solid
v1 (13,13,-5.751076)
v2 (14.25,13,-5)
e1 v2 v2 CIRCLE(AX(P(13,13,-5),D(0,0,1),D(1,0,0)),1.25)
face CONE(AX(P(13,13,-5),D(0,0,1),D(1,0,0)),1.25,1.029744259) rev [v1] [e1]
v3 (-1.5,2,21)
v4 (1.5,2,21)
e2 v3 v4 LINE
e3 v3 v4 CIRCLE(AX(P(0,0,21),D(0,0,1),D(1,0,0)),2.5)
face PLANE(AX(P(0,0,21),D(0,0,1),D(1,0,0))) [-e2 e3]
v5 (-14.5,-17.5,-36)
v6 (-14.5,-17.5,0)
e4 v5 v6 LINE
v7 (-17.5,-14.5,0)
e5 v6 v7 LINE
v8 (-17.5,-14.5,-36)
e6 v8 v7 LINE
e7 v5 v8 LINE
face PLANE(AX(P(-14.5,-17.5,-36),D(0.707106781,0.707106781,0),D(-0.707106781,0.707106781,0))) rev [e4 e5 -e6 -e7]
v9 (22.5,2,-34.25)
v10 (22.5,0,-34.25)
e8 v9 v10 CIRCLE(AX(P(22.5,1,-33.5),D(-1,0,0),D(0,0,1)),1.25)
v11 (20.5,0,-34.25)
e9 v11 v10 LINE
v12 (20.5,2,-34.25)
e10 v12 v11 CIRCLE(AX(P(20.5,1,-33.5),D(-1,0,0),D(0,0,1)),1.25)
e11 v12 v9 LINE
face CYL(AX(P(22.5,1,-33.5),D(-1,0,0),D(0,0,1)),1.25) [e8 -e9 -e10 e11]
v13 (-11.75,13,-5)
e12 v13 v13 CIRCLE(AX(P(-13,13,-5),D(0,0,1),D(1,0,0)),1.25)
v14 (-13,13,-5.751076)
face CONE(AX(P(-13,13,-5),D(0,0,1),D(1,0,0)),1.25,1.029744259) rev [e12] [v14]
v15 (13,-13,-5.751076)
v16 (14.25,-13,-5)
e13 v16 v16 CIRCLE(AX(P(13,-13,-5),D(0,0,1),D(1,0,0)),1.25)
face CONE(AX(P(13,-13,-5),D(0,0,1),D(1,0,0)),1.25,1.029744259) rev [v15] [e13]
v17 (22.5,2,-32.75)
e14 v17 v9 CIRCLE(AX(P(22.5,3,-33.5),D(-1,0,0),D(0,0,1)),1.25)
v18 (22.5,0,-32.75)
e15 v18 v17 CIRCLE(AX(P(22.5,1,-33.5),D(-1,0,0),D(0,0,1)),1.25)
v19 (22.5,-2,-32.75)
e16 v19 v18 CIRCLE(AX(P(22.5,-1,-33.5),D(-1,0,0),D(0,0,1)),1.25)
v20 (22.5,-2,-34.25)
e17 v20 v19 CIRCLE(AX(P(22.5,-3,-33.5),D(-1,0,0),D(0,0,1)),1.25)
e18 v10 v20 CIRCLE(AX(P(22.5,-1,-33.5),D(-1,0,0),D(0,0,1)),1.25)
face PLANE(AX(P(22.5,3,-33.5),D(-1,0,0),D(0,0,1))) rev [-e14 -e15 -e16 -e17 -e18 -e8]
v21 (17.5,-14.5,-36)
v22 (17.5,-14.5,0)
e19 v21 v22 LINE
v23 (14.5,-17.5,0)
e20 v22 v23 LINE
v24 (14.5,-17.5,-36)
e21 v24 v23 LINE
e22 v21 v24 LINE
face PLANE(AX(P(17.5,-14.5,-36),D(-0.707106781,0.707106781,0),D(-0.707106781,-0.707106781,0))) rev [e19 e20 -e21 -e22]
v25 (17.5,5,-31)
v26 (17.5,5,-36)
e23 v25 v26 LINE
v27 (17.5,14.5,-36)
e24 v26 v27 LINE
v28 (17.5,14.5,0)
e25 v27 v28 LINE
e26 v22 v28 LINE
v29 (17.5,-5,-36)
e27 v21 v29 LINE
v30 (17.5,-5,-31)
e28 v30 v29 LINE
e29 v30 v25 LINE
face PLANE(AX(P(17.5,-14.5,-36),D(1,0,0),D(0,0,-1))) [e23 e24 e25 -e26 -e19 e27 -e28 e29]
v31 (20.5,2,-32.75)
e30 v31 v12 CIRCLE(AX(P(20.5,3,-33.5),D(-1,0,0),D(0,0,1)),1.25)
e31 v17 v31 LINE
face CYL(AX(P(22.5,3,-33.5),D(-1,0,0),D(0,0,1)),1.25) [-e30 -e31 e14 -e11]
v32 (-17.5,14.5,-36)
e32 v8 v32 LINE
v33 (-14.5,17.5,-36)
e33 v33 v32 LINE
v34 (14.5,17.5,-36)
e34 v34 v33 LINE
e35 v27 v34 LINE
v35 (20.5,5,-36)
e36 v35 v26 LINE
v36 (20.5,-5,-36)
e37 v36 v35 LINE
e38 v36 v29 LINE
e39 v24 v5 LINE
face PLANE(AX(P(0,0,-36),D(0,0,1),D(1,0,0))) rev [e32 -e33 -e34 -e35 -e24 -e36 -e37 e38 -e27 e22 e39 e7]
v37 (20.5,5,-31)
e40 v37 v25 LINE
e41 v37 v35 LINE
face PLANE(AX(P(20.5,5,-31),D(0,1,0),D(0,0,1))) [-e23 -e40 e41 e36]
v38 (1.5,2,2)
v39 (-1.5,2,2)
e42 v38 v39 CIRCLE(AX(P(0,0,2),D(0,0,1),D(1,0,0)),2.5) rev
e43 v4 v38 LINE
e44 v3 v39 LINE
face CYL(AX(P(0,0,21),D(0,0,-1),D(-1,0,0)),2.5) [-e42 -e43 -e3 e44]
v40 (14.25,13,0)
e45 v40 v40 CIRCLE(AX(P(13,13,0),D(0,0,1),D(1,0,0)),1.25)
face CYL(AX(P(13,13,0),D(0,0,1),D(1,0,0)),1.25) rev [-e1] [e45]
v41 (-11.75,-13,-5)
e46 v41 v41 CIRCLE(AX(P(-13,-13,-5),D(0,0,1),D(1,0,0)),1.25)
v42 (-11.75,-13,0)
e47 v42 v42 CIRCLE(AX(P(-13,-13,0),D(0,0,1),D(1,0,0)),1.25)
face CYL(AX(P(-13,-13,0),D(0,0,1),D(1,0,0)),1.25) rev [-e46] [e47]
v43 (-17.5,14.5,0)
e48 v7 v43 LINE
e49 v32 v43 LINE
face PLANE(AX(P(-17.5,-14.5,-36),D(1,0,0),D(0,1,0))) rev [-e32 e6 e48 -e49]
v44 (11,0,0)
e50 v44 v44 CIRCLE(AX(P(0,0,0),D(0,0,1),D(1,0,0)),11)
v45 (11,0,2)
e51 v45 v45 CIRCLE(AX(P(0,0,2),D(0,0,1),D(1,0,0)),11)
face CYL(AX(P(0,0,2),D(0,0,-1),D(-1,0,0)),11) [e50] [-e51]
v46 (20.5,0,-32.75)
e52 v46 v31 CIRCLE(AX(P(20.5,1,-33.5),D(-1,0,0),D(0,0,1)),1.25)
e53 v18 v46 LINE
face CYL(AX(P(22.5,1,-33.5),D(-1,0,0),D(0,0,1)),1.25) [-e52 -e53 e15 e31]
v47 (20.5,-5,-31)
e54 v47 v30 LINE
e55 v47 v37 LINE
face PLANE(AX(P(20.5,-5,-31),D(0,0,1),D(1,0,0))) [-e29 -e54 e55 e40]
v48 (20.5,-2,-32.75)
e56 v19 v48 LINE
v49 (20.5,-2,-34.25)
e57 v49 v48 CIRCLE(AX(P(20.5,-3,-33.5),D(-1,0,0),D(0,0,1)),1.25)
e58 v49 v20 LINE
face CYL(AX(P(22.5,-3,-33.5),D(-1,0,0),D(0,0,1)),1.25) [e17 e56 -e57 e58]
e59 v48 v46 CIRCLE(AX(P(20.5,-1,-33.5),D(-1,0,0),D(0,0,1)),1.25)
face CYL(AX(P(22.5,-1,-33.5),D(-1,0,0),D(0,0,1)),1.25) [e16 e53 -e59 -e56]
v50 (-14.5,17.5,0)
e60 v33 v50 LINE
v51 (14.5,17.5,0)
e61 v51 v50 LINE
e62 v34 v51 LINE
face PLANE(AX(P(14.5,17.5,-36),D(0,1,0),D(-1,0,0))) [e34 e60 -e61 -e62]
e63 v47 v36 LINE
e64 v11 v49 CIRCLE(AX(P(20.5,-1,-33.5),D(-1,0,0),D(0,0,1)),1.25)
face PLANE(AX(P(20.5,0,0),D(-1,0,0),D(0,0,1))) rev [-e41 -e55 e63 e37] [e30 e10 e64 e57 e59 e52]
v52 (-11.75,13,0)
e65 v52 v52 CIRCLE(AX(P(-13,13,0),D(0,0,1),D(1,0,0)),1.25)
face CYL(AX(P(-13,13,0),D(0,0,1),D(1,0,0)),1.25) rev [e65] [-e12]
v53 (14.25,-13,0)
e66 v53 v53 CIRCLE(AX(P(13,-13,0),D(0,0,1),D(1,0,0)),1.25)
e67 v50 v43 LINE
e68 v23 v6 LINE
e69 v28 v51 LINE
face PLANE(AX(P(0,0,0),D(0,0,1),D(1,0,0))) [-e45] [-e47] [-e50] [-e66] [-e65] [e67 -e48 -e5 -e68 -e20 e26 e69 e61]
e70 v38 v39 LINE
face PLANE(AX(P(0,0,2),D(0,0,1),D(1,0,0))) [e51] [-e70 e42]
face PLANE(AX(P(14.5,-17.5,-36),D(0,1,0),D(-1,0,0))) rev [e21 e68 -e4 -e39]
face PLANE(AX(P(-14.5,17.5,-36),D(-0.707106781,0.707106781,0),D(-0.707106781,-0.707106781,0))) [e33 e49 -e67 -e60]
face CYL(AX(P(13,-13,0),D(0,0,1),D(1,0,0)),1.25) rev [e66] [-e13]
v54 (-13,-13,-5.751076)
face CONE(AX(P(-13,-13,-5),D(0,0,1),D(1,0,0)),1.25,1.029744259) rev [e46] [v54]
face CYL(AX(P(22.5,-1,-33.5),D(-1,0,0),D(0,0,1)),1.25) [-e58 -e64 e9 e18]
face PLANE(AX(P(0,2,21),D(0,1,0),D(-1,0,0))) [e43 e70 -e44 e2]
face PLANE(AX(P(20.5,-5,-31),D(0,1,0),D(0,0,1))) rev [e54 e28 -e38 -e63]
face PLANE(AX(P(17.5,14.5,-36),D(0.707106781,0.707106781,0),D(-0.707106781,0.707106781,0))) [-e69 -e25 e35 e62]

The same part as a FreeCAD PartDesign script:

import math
import FreeCAD as App
import Part
import Sketcher

V = App.Vector
Q = App.Units.Quantity


def add_polygon(sketch, points):
    """Adds a closed chain of lines whose ends are joined by coincident constraints."""
    first, n = sketch.GeometryCount, len(points)
    for a, b in zip(points, points[1:] + points[:1]):
        sketch.addGeometry(Part.LineSegment(App.Vector(*a, 0), App.Vector(*b, 0)), False)
    for i in range(n):
        sketch.addConstraint(Sketcher.Constraint("Coincident", first + i, 2, first + (i + 1) % n, 1))

doc = App.newDocument("Part")
body = doc.addObject("PartDesign::Body", "Body")

# Sketch on XY plane
sketch1 = body.newObject("Sketcher::SketchObject", "Sketch")
sketch1.AttachmentSupport = (doc.getObject("XY_Plane"), [""])
sketch1.MapMode = "FlatFace"
add_polygon(sketch1, [(-14.5, 17.5), (-17.5, 14.5), (-17.5, -14.5), (-14.5, -17.5), (14.5, -17.5), (17.5, -14.5), (17.5, 14.5), (14.5, 17.5)])  # lines 0-7
sketch1.addConstraint([
    Sketcher.Constraint("Vertical", 1),
    Sketcher.Constraint("Horizontal", 3),
    Sketcher.Constraint("Vertical", 5),
    Sketcher.Constraint("Horizontal", 7),
    Sketcher.Constraint("Symmetric", 0, 2, 4, 2, -1, 1),
    Sketcher.Constraint("Symmetric", 2, 2, 6, 2, -1, 1),
    Sketcher.Constraint("Perpendicular", 0, 2),
    Sketcher.Constraint("Perpendicular", 2, 4),
    Sketcher.Constraint("Perpendicular", 4, 6),
    Sketcher.Constraint("Horizontal", 1, 2, 4, 2),
    Sketcher.Constraint("Vertical", 3, 2, 6, 2),
    Sketcher.Constraint("Equal", 7, 1),
    Sketcher.Constraint("DistanceX", 3, 1, 3, 2, Q("29 mm")),
    Sketcher.Constraint("DistanceX", 1, 2, 2, 2, Q("3 mm")),
])
pad1 = body.newObject("PartDesign::Pad", "Pad")
pad1.Profile = sketch1
pad1.Length = 36
pad1.Reversed = True

# Sketch on XY plane
sketch2 = body.newObject("Sketcher::SketchObject", "Sketch001")
sketch2.AttachmentSupport = (doc.getObject("XY_Plane"), [""])
sketch2.MapMode = "FlatFace"
sketch2.addGeometry(Part.Circle(V(0, 0, 0), V(0, 0, 1), 11), False)
sketch2.addConstraint([
    Sketcher.Constraint("Coincident", 0, 3, -1, 1),
    Sketcher.Constraint("Diameter", 0, Q("22 mm")),
])
pad2 = body.newObject("PartDesign::Pad", "Pad001")
pad2.Profile = sketch2
pad2.Length = 2

# Sketch on XY plane
sketch3 = body.newObject("Sketcher::SketchObject", "Sketch002")
sketch3.AttachmentSupport = (doc.getObject("XY_Plane"), [""])
sketch3.MapMode = "FlatFace"
sketch3.addGeometry([
    Part.Circle(V(13, 13, 0), V(0, 0, 1), 1.2),
    Part.Circle(V(-13, 13, 0), V(0, 0, 1), 1.2),
    Part.Circle(V(-13, -13, 0), V(0, 0, 1), 1.2),
    Part.Circle(V(13, -13, 0), V(0, 0, 1), 1.2),
], False)
sketch3.addConstraint([
    Sketcher.Constraint("Equal", 0, 1),
    Sketcher.Constraint("Equal", 1, 2),
    Sketcher.Constraint("Equal", 2, 3),
    Sketcher.Constraint("Symmetric", 0, 3, 2, 3, -1, 1),
    Sketcher.Constraint("Symmetric", 1, 3, 3, 3, -1, 1),
    Sketcher.Constraint("Symmetric", 0, 3, 1, 3, -2),
    Sketcher.Constraint("Diameter", 0, Q("2.5 mm")),
    Sketcher.Constraint("DistanceX", -1, 1, 0, 3, Q("13 mm")),
    Sketcher.Constraint("DistanceY", -1, 1, 0, 3, Q("13 mm")),
])
doc.recompute()
hole = body.newObject("PartDesign::Hole", "Hole")
hole.Profile = sketch3
hole.ThreadType = "None"
hole.Diameter = 2.5
hole.DepthType = "Dimension"
hole.Depth = 5
hole.DrillPoint = "Angled"
hole.DrillPointAngle = 118

# Sketch on XY plane
sketch4 = body.newObject("Sketcher::SketchObject", "Sketch003")
sketch4.AttachmentSupport = (doc.getObject("XY_Plane"), [""])
sketch4.MapMode = "FlatFace"
sketch4.addGeometry([
    Part.LineSegment(V(1.5, 2, 0), V(-1.5, 2, 0)),
    Part.ArcOfCircle(Part.Circle(V(0, 0, 0), V(0, 0, 1), 2.5), math.radians(127), math.radians(413)),
], False)
sketch4.addConstraint([
    Sketcher.Constraint("Coincident", 0, 1, 1, 2),
    Sketcher.Constraint("Coincident", 1, 1, 0, 2),
    Sketcher.Constraint("Horizontal", 0),
    Sketcher.Constraint("Coincident", 1, 3, -1, 1),
    Sketcher.Constraint("Radius", 1, Q("2.5 mm")),
    Sketcher.Constraint("DistanceX", 0, 2, 0, 1, Q("3 mm")),
])
pad3 = body.newObject("PartDesign::Pad", "Pad002")
pad3.Profile = sketch4
pad3.Length = 21

# Sketch on YZ plane
sketch5 = body.newObject("Sketcher::SketchObject", "Sketch004")
sketch5.AttachmentSupport = (doc.getObject("YZ_Plane"), [""])
sketch5.MapMode = "FlatFace"
sketch5.AttachmentOffset = App.Placement(V(0, 0, 17.5), App.Rotation())
add_polygon(sketch5, [(5, -31), (-5, -31), (-5, -36), (5, -36)])  # lines 0-3
sketch5.addConstraint([
    Sketcher.Constraint("Horizontal", 0),
    Sketcher.Constraint("Vertical", 1),
    Sketcher.Constraint("Horizontal", 2),
    Sketcher.Constraint("Vertical", 3),
    Sketcher.Constraint("DistanceX", 0, 2, 0, 1, Q("10 mm")),
    Sketcher.Constraint("DistanceY", 1, 2, 1, 1, Q("5 mm")),
    Sketcher.Constraint("DistanceX", 0, 2, -1, 1, Q("5 mm")),
    Sketcher.Constraint("DistanceY", 0, 2, -1, 1, Q("31 mm")),
])
pad4 = body.newObject("PartDesign::Pad", "Pad003")
pad4.Profile = sketch5
pad4.Length = 3

# Sketch on YZ plane
sketch6 = body.newObject("Sketcher::SketchObject", "Sketch005")
sketch6.AttachmentSupport = (doc.getObject("YZ_Plane"), [""])
sketch6.MapMode = "FlatFace"
sketch6.AttachmentOffset = App.Placement(V(0, 0, 20.5), App.Rotation())
sketch6.addGeometry([
    Part.ArcOfCircle(Part.Circle(V(-1, -33.5, 0), V(0, 0, 1), 1.2), math.radians(-143), math.radians(-37)),  # 0
    Part.ArcOfCircle(Part.Circle(V(1, -33.5, 0), V(0, 0, 1), 1.2), math.radians(-143), math.radians(-37)),  # 1
    Part.ArcOfCircle(Part.Circle(V(3, -33.5, 0), V(0, 0, 1), 1.2), math.radians(-143), math.radians(143)),  # 2
    Part.ArcOfCircle(Part.Circle(V(1, -33.5, 0), V(0, 0, 1), 1.2), math.radians(37), math.radians(143)),  # 3
    Part.ArcOfCircle(Part.Circle(V(-1, -33.5, 0), V(0, 0, 1), 1.2), math.radians(37), math.radians(143)),  # 4
    Part.ArcOfCircle(Part.Circle(V(-3, -33.5, 0), V(0, 0, 1), 1.2), math.radians(37), math.radians(323)),  # 5
], False)
sketch6.addConstraint([
    Sketcher.Constraint("Coincident", 0, 2, 1, 1),
    Sketcher.Constraint("Coincident", 1, 2, 2, 1),
    Sketcher.Constraint("Coincident", 2, 2, 3, 1),
    Sketcher.Constraint("Coincident", 3, 2, 4, 1),
    Sketcher.Constraint("Coincident", 4, 2, 5, 1),
    Sketcher.Constraint("Coincident", 5, 2, 0, 1),
    Sketcher.Constraint("Coincident", 3, 3, 1, 3),
    Sketcher.Constraint("Coincident", 4, 3, 0, 3),
    Sketcher.Constraint("Equal", 0, 1),
    Sketcher.Constraint("Equal", 1, 2),
    Sketcher.Constraint("Equal", 2, 3),
    Sketcher.Constraint("Equal", 3, 4),
    Sketcher.Constraint("Equal", 4, 5),
    Sketcher.Constraint("Symmetric", 0, 3, 1, 3, -2),
    Sketcher.Constraint("Symmetric", 2, 3, 5, 3, -2),
    Sketcher.Constraint("Horizontal", 1, 3, 2, 3),
    Sketcher.Constraint("Horizontal", 0, 2, 1, 2),
    Sketcher.Constraint("Radius", 0, Q("1.25 mm")),
    Sketcher.Constraint("DistanceX", 0, 3, -1, 1, Q("1 mm")),
    Sketcher.Constraint("DistanceY", 0, 3, -1, 1, Q("33.5 mm")),
])
pad5 = body.newObject("PartDesign::Pad", "Pad004")
pad5.Profile = sketch6
pad5.Length = 2

doc.recompute()
